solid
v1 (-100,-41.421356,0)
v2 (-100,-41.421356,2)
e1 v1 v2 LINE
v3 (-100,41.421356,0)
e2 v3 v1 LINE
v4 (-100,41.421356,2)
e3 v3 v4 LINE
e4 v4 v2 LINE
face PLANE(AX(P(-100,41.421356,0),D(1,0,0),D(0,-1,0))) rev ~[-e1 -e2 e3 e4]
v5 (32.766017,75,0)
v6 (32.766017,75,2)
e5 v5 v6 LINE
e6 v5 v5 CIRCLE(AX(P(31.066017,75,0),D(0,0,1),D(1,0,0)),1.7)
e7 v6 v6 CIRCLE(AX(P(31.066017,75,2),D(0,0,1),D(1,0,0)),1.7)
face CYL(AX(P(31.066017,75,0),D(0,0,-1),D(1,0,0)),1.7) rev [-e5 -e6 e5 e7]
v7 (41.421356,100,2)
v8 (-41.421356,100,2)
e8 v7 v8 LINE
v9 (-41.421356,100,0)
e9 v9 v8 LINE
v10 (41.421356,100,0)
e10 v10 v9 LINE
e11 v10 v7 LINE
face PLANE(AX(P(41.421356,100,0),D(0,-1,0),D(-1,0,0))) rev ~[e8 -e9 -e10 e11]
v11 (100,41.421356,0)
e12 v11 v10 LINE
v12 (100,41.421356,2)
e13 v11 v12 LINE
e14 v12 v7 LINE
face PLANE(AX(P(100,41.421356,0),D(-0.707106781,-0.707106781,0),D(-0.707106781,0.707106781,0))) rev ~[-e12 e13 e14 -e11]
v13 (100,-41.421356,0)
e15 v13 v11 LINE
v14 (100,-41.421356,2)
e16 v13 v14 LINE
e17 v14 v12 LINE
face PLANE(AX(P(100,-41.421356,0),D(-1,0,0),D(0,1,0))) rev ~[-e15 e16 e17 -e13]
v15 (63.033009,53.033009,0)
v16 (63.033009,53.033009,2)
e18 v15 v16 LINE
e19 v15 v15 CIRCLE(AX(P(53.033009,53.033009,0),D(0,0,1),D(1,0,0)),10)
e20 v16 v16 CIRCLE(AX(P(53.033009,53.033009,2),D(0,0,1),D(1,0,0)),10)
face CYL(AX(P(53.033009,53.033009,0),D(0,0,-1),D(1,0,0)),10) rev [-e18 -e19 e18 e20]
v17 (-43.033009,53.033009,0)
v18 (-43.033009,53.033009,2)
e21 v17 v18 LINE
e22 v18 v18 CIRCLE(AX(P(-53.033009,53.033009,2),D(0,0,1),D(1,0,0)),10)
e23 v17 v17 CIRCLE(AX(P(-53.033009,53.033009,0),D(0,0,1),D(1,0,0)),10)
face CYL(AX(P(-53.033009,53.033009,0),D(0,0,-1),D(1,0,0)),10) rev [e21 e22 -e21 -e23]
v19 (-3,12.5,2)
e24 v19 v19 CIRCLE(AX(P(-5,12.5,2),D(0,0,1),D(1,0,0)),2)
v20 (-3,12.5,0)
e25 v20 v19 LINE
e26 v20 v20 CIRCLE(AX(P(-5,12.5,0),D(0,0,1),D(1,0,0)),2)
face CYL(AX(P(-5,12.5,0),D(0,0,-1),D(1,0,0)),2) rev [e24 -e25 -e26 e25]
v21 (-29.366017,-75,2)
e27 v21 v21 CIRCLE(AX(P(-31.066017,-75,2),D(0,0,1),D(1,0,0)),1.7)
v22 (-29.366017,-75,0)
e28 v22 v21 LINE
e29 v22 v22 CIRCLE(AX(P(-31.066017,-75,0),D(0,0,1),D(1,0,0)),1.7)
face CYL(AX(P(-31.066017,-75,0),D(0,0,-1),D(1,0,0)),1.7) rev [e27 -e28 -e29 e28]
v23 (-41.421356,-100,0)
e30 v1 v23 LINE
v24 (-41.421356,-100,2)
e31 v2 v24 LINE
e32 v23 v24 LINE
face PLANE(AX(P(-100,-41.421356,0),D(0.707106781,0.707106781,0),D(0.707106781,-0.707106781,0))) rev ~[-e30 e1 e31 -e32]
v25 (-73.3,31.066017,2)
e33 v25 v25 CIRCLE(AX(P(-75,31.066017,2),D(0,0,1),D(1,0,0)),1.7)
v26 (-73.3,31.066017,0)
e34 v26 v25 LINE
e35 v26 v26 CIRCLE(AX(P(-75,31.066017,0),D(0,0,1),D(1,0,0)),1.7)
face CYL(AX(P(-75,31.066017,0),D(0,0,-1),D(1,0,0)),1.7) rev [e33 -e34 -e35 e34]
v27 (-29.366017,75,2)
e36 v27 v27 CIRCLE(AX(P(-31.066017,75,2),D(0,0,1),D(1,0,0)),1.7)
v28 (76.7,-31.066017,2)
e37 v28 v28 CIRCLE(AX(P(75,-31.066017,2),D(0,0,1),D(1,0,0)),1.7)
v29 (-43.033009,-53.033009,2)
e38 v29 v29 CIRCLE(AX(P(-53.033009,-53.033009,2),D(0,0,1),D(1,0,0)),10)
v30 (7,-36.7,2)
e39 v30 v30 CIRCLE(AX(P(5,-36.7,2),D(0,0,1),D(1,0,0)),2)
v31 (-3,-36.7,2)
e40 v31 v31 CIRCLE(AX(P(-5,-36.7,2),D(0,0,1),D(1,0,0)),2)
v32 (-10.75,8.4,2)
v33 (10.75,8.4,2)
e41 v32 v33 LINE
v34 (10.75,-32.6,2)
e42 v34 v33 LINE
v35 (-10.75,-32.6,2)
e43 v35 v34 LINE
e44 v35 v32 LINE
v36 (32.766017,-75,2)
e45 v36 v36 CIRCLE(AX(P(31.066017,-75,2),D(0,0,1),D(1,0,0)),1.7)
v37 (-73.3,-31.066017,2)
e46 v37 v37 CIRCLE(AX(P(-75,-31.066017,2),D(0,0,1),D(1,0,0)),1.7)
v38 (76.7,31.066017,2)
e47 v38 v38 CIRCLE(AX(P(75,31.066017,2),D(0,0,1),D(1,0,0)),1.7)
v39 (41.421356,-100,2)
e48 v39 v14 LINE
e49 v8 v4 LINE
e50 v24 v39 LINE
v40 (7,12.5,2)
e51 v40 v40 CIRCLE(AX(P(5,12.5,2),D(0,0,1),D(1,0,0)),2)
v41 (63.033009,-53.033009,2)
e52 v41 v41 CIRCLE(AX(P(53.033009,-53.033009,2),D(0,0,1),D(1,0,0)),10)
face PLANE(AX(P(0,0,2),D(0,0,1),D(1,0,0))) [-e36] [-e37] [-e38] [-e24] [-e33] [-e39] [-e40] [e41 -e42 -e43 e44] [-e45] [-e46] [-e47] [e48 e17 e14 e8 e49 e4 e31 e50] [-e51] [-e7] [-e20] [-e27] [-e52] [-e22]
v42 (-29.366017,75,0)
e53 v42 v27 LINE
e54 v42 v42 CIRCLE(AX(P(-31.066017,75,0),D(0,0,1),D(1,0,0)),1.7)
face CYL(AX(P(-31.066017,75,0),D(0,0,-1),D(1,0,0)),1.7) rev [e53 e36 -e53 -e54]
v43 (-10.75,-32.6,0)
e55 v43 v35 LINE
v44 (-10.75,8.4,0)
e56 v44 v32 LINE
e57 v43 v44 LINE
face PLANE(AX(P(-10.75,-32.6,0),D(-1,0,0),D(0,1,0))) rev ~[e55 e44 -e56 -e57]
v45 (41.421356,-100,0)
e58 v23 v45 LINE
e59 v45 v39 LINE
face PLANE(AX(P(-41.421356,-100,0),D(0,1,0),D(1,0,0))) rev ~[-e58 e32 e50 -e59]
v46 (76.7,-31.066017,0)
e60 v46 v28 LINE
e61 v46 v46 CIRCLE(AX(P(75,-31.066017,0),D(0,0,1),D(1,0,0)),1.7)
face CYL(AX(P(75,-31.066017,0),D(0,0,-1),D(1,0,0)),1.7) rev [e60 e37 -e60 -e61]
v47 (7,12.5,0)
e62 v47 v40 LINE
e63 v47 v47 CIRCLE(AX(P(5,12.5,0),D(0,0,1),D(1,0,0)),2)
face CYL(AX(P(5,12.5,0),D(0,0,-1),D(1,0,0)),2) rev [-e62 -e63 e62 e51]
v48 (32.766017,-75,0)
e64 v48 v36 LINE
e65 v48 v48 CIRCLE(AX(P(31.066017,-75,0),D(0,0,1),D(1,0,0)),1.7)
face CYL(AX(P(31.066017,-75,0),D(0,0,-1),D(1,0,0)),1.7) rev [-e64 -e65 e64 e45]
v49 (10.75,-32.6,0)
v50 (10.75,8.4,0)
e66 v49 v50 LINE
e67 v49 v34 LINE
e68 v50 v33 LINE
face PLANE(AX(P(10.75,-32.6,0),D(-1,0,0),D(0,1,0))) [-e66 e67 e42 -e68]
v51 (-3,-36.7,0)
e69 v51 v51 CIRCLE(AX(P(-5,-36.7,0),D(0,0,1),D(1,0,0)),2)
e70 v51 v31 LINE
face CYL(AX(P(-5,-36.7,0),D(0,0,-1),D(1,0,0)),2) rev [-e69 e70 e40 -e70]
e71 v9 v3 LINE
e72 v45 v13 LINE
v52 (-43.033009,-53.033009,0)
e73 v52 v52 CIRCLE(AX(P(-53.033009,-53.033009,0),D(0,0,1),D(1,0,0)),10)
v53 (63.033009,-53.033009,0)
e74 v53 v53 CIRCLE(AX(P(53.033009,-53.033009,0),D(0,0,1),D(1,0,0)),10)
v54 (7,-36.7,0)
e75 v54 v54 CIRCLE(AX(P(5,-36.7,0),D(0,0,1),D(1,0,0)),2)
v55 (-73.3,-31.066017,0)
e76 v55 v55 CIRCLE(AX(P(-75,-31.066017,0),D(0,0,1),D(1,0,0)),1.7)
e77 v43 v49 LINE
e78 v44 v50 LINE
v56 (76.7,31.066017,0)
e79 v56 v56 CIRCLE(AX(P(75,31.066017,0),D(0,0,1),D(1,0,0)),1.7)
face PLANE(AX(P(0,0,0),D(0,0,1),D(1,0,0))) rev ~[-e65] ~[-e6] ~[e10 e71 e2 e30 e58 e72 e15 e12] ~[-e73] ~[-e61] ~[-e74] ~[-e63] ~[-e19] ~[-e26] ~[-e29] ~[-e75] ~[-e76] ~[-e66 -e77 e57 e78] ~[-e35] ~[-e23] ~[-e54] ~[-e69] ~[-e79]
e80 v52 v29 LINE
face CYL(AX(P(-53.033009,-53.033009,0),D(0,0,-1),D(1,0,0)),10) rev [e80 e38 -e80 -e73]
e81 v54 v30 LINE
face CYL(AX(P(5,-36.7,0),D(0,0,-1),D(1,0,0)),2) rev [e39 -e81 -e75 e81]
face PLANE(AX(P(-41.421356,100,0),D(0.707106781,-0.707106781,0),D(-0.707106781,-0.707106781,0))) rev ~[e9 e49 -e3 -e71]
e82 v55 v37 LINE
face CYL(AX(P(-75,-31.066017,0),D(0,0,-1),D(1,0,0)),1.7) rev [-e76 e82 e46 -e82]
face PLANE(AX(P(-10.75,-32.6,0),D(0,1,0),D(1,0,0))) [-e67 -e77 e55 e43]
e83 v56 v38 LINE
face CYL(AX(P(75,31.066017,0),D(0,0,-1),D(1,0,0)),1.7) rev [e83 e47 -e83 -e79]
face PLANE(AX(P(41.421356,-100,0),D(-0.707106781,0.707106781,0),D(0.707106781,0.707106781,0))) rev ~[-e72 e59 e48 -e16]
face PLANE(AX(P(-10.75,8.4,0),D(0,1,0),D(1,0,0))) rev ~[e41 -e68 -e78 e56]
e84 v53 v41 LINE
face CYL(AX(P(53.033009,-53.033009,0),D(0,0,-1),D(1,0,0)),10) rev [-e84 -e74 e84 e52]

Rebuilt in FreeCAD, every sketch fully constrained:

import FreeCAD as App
import Part
import Sketcher

V = App.Vector
Q = App.Units.Quantity

doc = App.newDocument("Part")
body = doc.addObject("PartDesign::Body", "Body")

# Sketch on XY plane
sketch1 = doc.addObject("Sketcher::SketchObject", "Sketch")
body.addObject(sketch1)
sketch1.AttachmentSupport = (doc.XY_Plane, [""])
sketch1.MapMode = "FlatFace"
sketch1.addGeometry([
    Part.LineSegment(V(41.4, 100, 0), V(-41.4, 100, 0)),  # 0
    Part.LineSegment(V(-41.4, 100, 0), V(-100, 41.4, 0)),  # 1
    Part.LineSegment(V(-100, 41.4, 0), V(-100, -41.4, 0)),  # 2
    Part.LineSegment(V(-100, -41.4, 0), V(-41.4, -100, 0)),  # 3
    Part.LineSegment(V(-41.4, -100, 0), V(41.4, -100, 0)),  # 4
    Part.LineSegment(V(41.4, -100, 0), V(100, -41.4, 0)),  # 5
    Part.LineSegment(V(100, -41.4, 0), V(100, 41.4, 0)),  # 6
    Part.LineSegment(V(100, 41.4, 0), V(41.4, 100, 0)),  # 7
    Part.Circle(V(-53, -53, 0), V(0, 0, 1), 10),  # 8
    Part.Circle(V(-31.1, -75, 0), V(0, 0, 1), 1.7),  # 9
    Part.Circle(V(-75, -31.1, 0), V(0, 0, 1), 1.7),  # 10
    Part.Circle(V(-5, -36.7, 0), V(0, 0, 1), 2),  # 11
    Part.LineSegment(V(10.8, -32.6, 0), V(-10.8, -32.6, 0)),  # 12
    Part.LineSegment(V(-10.8, -32.6, 0), V(-10.8, 8.4, 0)),  # 13
    Part.LineSegment(V(-10.8, 8.4, 0), V(10.8, 8.4, 0)),  # 14
    Part.LineSegment(V(10.8, 8.4, 0), V(10.8, -32.6, 0)),  # 15
    Part.Circle(V(31.1, -75, 0), V(0, 0, 1), 1.7),  # 16
    Part.Circle(V(53, -53, 0), V(0, 0, 1), 10),  # 17
    Part.Circle(V(5, -36.7, 0), V(0, 0, 1), 2),  # 18
    Part.Circle(V(75, -31.1, 0), V(0, 0, 1), 1.7),  # 19
    Part.Circle(V(-75, 31.1, 0), V(0, 0, 1), 1.7),  # 20
    Part.Circle(V(-5, 12.5, 0), V(0, 0, 1), 2),  # 21
    Part.Circle(V(-53, 53, 0), V(0, 0, 1), 10),  # 22
    Part.Circle(V(-31.1, 75, 0), V(0, 0, 1), 1.7),  # 23
    Part.Circle(V(5, 12.5, 0), V(0, 0, 1), 2),  # 24
    Part.Circle(V(75, 31.1, 0), V(0, 0, 1), 1.7),  # 25
    Part.Circle(V(31.1, 75, 0), V(0, 0, 1), 1.7),  # 26
    Part.Circle(V(53, 53, 0), V(0, 0, 1), 10),  # 27
], False)
sketch1.addConstraint([
    Sketcher.Constraint("Coincident", 0, 2, 1, 1),
    Sketcher.Constraint("Coincident", 1, 2, 2, 1),
    Sketcher.Constraint("Coincident", 2, 2, 3, 1),
    Sketcher.Constraint("Coincident", 3, 2, 4, 1),
    Sketcher.Constraint("Coincident", 4, 2, 5, 1),
    Sketcher.Constraint("Coincident", 5, 2, 6, 1),
    Sketcher.Constraint("Coincident", 6, 2, 7, 1),
    Sketcher.Constraint("Coincident", 7, 2, 0, 1),
    Sketcher.Constraint("Coincident", 12, 2, 13, 1),
    Sketcher.Constraint("Coincident", 13, 2, 14, 1),
    Sketcher.Constraint("Coincident", 14, 2, 15, 1),
    Sketcher.Constraint("Coincident", 15, 2, 12, 1),
    Sketcher.Constraint("Horizontal", 0),
    Sketcher.Constraint("Vertical", 2),
    Sketcher.Constraint("Horizontal", 4),
    Sketcher.Constraint("Vertical", 6),
    Sketcher.Constraint("Horizontal", 12),
    Sketcher.Constraint("Vertical", 13),
    Sketcher.Constraint("Horizontal", 14),
    Sketcher.Constraint("Vertical", 15),
    Sketcher.Constraint("Equal", 9, 10),
    Sketcher.Constraint("Equal", 10, 16),
    Sketcher.Constraint("Equal", 8, 17),
    Sketcher.Constraint("Equal", 11, 18),
    Sketcher.Constraint("Equal", 16, 19),
    Sketcher.Constraint("Equal", 19, 20),
    Sketcher.Constraint("Equal", 18, 21),
    Sketcher.Constraint("Equal", 17, 22),
    Sketcher.Constraint("Equal", 20, 23),
    Sketcher.Constraint("Equal", 21, 24),
    Sketcher.Constraint("Equal", 23, 25),
    Sketcher.Constraint("Equal", 25, 26),
    Sketcher.Constraint("Equal", 22, 27),
    Sketcher.Constraint("Symmetric", 19, 3, 20, 3, -1, 1),
    Sketcher.Constraint("Symmetric", 17, 3, 22, 3, -1, 1),
    Sketcher.Constraint("Symmetric", 16, 3, 23, 3, -1, 1),
    Sketcher.Constraint("Symmetric", 10, 3, 25, 3, -1, 1),
    Sketcher.Constraint("Symmetric", 9, 3, 26, 3, -1, 1),
    Sketcher.Constraint("Symmetric", 8, 3, 27, 3, -1, 1),
    Sketcher.Constraint("Symmetric", 0, 2, 4, 2, -1, 1),
    Sketcher.Constraint("Symmetric", 1, 2, 5, 2, -1, 1),
    Sketcher.Constraint("Symmetric", 9, 3, 16, 3, -2),
    Sketcher.Constraint("Symmetric", 8, 3, 17, 3, -2),
    Sketcher.Constraint("Symmetric", 11, 3, 18, 3, -2),
    Sketcher.Constraint("Symmetric", 10, 3, 19, 3, -2),
    Sketcher.Constraint("Symmetric", 21, 3, 24, 3, -2),
    Sketcher.Constraint("Perpendicular", 1, 3),
    Sketcher.Constraint("Perpendicular", 5, 7),
    Sketcher.Constraint("Horizontal", 2, 2, 5, 2),
    Sketcher.Constraint("Horizontal", 1, 2, 6, 2),
    Sketcher.Constraint("Vertical", 11, 3, 21, 3),
    Sketcher.Constraint("Vertical", 0, 2, 3, 2),
    Sketcher.Constraint("Equal", 4, 2),
    Sketcher.Constraint("Diameter", 8, Q("20 mm")),
    Sketcher.Constraint("Diameter", 11, Q("4 mm")),
    Sketcher.Constraint("Diameter", 9, Q("3.4 mm")),
    Sketcher.Constraint("DistanceY", 13, 1, 13, 2, Q("41 mm")),
    Sketcher.Constraint("DistanceX", 12, 2, 12, 1, Q("21.5 mm")),
    Sketcher.Constraint("DistanceY", 9, 3, -1, 1, Q("75 mm")),
    Sketcher.Constraint("DistanceX", 10, 3, -1, 1, Q("75 mm")),
    Sketcher.Constraint("DistanceX", 11, 3, -1, 1, Q("5 mm")),
    Sketcher.Constraint("DistanceY", -1, 1, 0, 2, Q("100 mm")),
    Sketcher.Constraint("DistanceY", 11, 3, -1, 1, Q("36.7 mm")),
    Sketcher.Constraint("DistanceY", -1, 1, 21, 3, Q("12.5 mm")),
    Sketcher.Constraint("DistanceY", 12, 2, -1, 1, Q("32.6 mm")),
    Sketcher.Constraint("DistanceX", 12, 2, -1, 1, Q("10.75 mm")),
    Sketcher.Constraint("DistanceX", 0, 2, 0, 1, Q("82.842712 mm")),
    Sketcher.Constraint("DistanceX", 8, 3, -1, 1, Q("53.033009 mm")),
    Sketcher.Constraint("DistanceY", 8, 3, -1, 1, Q("53.033009 mm")),
    Sketcher.Constraint("DistanceX", 0, 2, 23, 3, Q("10.355339 mm")),
    Sketcher.Constraint("DistanceY", 20, 3, 1, 2, Q("10.355339 mm")),
])
pad1 = doc.addObject("PartDesign::Pad", "Pad")
body.addObject(pad1)
pad1.Profile = sketch1
pad1.Length = 2

doc.recompute()
